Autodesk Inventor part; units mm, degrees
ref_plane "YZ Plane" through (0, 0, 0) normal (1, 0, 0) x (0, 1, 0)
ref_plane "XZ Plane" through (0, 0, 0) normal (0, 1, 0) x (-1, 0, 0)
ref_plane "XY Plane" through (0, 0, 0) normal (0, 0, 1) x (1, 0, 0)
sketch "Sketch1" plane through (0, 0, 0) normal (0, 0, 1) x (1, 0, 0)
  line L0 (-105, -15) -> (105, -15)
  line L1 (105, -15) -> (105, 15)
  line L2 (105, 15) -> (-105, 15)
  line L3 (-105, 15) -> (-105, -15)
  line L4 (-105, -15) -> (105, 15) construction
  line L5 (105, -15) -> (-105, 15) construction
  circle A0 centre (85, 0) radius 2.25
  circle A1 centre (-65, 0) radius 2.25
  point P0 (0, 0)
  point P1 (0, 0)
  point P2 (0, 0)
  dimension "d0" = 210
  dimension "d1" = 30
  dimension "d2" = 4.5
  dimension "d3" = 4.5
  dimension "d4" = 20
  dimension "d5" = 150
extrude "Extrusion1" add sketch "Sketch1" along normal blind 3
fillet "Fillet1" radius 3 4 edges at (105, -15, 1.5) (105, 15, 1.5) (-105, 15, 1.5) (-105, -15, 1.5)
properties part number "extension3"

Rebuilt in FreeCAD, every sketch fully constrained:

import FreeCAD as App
import Part
import Sketcher

V = App.Vector


def edges_at(feature, points):
    """Names of the edges that pass closest to the given points."""
    edges = feature.Shape.Edges
    near = lambda p: min(range(len(edges)), key=lambda i: edges[i].distToShape(Part.Vertex(*p))[0])
    return sorted({f"Edge{near(p) + 1}" for p in points})


def add_polygon(sketch, points):
    """Adds a closed chain of lines whose ends are joined by coincident constraints."""
    first, n = sketch.GeometryCount, len(points)
    for a, b in zip(points, points[1:] + points[:1]):
        sketch.addGeometry(Part.LineSegment(App.Vector(*a, 0), App.Vector(*b, 0)), False)
    for i in range(n):
        sketch.addConstraint(Sketcher.Constraint("Coincident", first + i, 2, first + (i + 1) % n, 1))

doc = App.newDocument("Part")
body = doc.addObject("PartDesign::Body", "Body")

# Sketch on XY plane
sketch1 = body.newObject("Sketcher::SketchObject", "Sketch")
sketch1.AttachmentSupport = (doc.getObject("XY_Plane"), [""])
sketch1.MapMode = "FlatFace"
add_polygon(sketch1, [(-105, 15), (-105, -15), (105, -15), (105, 15)])  # lines 0-3
sketch1.addGeometry(Part.Circle(V(-65, 0, 0), V(0, 0, 1), 2.25), False)  # 4
sketch1.addGeometry(Part.Circle(V(85, 0, 0), V(0, 0, 1), 2.25), False)  # 5
sketch1.addConstraint(Sketcher.Constraint("Vertical", 0))
sketch1.addConstraint(Sketcher.Constraint("Horizontal", 1))
sketch1.addConstraint(Sketcher.Constraint("Vertical", 2))
sketch1.addConstraint(Sketcher.Constraint("Horizontal", 3))
sketch1.addConstraint(Sketcher.Constraint("Equal", 4, 5))
sketch1.addConstraint(Sketcher.Constraint("Symmetric", 0, 2, 2, 2, -1, 1))
sketch1.addConstraint(Sketcher.Constraint("PointOnObject", 4, 3, -1))
sketch1.addConstraint(Sketcher.Constraint("PointOnObject", 5, 3, -1))
sketch1.addConstraint(Sketcher.Constraint("Diameter", 4, 4.5))
sketch1.addConstraint(Sketcher.Constraint("DistanceX", 1, 1, 1, 2, 210.0))
sketch1.addConstraint(Sketcher.Constraint("DistanceY", 0, 2, 0, 1, 30.0))
sketch1.addConstraint(Sketcher.Constraint("DistanceX", 4, 3, 5, 3, 150.0))
sketch1.addConstraint(Sketcher.Constraint("DistanceX", 5, 3, 1, 2, 20.0))
pad1 = body.newObject("PartDesign::Pad", "Pad")
pad1.Profile = sketch1
pad1.Length = 3
doc.recompute()

fillet = body.newObject("PartDesign::Fillet", "Fillet")
fillet.Base = (pad1, edges_at(pad1, [
    (105, -15, 1.5),
    (105, 15, 1.5),
    (-105, 15, 1.5),
    (-105, -15, 1.5),
]))
fillet.Radius = 3

doc.recompute()
